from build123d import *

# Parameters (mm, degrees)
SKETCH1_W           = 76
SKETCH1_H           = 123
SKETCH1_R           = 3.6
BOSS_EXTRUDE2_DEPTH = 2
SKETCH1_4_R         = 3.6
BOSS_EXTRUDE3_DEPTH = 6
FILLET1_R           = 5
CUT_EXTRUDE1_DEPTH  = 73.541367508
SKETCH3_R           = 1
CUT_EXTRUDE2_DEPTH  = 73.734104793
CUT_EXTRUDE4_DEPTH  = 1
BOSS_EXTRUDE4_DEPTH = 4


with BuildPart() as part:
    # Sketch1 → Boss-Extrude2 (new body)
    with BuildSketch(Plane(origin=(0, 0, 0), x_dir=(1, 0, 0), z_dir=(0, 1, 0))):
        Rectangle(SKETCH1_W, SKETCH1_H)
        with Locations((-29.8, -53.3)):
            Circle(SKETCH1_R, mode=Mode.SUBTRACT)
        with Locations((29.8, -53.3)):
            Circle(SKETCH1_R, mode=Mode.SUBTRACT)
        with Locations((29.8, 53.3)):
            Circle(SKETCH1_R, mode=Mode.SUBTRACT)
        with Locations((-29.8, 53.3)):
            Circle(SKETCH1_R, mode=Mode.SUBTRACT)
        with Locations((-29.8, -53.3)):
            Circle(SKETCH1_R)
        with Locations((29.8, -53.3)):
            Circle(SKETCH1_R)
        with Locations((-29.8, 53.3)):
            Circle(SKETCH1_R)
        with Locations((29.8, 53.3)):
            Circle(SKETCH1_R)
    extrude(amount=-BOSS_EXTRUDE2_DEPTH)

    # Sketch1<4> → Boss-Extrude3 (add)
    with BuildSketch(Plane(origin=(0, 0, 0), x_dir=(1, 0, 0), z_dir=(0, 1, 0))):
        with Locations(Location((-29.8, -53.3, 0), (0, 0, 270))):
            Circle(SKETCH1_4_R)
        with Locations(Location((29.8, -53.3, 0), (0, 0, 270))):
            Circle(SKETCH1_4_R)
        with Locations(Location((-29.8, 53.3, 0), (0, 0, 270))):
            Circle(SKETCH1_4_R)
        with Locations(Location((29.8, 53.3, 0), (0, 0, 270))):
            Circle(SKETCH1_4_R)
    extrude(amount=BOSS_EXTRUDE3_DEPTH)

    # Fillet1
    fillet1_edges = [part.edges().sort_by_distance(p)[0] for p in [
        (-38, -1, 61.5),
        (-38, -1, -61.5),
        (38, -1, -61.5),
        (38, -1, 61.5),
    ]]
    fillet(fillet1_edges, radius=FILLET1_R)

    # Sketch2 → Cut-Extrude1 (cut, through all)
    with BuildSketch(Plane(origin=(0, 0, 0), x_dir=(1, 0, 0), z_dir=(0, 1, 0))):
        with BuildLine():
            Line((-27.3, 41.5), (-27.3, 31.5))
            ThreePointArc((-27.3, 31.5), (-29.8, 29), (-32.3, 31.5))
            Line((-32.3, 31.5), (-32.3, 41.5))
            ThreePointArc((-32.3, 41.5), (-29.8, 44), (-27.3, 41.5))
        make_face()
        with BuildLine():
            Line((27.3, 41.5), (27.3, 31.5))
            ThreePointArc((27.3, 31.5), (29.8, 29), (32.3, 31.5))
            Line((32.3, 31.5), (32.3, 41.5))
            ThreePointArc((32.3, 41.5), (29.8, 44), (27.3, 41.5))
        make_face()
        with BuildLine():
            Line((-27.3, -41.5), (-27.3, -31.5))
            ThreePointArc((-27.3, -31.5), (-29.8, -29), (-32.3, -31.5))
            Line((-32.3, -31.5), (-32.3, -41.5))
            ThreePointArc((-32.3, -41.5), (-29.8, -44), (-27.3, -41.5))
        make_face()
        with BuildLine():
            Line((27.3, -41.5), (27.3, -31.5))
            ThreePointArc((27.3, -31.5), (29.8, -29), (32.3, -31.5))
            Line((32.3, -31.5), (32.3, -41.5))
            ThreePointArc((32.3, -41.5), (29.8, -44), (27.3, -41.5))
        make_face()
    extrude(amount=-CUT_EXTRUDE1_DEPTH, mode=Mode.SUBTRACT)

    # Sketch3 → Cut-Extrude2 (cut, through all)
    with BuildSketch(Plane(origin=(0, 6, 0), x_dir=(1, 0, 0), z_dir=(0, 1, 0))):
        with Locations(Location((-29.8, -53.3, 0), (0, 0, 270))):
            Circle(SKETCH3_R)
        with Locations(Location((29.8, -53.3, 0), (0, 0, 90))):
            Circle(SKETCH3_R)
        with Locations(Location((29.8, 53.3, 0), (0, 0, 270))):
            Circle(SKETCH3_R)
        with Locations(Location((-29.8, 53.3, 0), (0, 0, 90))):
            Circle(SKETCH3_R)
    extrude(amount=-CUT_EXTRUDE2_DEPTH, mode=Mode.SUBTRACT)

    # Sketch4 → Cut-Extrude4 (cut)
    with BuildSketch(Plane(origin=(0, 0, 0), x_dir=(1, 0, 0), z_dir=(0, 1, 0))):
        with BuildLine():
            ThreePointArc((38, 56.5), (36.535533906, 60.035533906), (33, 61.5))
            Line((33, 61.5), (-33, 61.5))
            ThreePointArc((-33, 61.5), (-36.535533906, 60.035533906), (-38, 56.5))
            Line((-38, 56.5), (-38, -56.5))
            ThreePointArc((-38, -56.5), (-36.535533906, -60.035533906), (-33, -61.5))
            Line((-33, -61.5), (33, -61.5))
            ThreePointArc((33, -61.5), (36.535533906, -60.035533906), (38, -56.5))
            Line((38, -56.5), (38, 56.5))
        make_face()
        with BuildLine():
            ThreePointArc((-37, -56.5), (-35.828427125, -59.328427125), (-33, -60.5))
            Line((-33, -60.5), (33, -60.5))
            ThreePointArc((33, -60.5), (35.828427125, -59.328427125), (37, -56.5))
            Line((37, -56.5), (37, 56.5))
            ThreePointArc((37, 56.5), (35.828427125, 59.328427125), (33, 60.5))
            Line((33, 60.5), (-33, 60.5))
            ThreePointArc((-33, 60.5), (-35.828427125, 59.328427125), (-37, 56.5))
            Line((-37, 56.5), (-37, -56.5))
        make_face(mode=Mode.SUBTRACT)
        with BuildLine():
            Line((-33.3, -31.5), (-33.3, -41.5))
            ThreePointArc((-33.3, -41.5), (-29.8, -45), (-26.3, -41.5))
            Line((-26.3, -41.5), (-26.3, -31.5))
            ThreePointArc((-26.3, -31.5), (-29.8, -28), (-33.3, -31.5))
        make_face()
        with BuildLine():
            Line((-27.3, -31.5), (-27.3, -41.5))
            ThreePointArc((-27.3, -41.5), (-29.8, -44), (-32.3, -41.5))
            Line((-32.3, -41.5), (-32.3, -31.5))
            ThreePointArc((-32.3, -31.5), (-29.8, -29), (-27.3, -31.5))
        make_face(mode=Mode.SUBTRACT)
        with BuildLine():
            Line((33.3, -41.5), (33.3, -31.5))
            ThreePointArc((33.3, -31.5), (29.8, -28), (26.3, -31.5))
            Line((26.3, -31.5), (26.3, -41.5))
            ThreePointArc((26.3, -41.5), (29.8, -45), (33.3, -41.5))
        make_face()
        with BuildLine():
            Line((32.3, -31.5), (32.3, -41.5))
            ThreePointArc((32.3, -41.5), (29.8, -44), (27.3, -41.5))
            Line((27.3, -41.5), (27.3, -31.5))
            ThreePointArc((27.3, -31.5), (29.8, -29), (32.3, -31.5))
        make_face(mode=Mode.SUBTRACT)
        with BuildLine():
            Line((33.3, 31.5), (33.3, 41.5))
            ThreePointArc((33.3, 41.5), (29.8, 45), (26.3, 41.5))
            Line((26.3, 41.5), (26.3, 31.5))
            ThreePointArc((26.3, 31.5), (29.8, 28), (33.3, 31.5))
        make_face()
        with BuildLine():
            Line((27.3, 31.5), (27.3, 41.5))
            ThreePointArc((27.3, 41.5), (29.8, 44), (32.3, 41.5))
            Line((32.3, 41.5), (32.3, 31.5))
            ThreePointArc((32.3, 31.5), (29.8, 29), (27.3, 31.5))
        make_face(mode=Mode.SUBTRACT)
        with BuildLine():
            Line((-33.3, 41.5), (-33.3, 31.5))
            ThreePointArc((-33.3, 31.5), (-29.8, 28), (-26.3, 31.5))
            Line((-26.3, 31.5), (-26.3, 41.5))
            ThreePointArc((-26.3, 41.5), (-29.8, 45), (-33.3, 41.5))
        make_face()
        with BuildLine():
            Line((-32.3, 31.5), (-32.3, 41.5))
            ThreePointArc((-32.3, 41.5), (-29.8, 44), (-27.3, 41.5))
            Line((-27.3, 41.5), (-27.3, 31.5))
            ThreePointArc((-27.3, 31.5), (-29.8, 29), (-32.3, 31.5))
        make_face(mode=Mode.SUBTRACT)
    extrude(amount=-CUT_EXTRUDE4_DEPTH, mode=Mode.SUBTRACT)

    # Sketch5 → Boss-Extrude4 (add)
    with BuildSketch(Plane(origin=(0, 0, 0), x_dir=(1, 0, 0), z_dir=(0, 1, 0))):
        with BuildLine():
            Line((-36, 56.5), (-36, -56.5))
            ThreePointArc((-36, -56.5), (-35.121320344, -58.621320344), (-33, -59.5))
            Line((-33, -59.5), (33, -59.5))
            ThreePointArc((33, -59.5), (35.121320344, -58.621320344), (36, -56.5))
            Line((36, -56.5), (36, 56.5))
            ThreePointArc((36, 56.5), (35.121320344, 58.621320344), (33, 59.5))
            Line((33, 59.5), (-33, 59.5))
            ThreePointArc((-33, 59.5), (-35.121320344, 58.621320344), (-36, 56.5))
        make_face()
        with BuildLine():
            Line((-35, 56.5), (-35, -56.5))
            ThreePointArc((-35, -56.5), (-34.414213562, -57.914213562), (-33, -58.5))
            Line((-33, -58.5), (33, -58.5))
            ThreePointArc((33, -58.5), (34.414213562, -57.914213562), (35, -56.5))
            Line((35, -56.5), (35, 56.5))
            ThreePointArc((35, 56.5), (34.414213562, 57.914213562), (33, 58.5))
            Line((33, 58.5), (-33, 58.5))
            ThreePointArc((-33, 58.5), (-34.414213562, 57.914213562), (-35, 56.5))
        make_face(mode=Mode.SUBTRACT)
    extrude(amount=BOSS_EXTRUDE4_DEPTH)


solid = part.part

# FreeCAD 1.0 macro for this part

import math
import FreeCAD as App
import Part
import Sketcher

V = App.Vector
Q = App.Units.Quantity


def edges_at(feature, points):
    """Names of the edges that pass closest to the given points."""
    edges = feature.Shape.Edges
    near = lambda p: min(range(len(edges)), key=lambda i: edges[i].distToShape(Part.Vertex(*p))[0])
    return sorted({f"Edge{near(p) + 1}" for p in points})


def add_polygon(sketch, points):
    """Adds a closed chain of lines whose ends are joined by coincident constraints."""
    first, n = sketch.GeometryCount, len(points)
    for a, b in zip(points, points[1:] + points[:1]):
        sketch.addGeometry(Part.LineSegment(App.Vector(*a, 0), App.Vector(*b, 0)), False)
    for i in range(n):
        sketch.addConstraint(Sketcher.Constraint("Coincident", first + i, 2, first + (i + 1) % n, 1))

doc = App.newDocument("Part")
body = doc.addObject("PartDesign::Body", "Body")

# Sketch on XZ plane
sketch1 = doc.addObject("Sketcher::SketchObject", "Sketch")
body.addObject(sketch1)
sketch1.AttachmentSupport = (doc.XZ_Plane, [""])
sketch1.MapMode = "FlatFace"
add_polygon(sketch1, [(-38, -61.5), (-38, 61.5), (38, 61.5), (38, -61.5)])  # lines 0-3
sketch1.addConstraint(Sketcher.Constraint("Vertical", 0))
sketch1.addConstraint(Sketcher.Constraint("Horizontal", 1))
sketch1.addConstraint(Sketcher.Constraint("Vertical", 2))
sketch1.addConstraint(Sketcher.Constraint("Horizontal", 3))
sketch1.addConstraint(Sketcher.Constraint("Symmetric", 0, 2, 2, 2, -1, 1))
sketch1.addConstraint(Sketcher.Constraint("DistanceX", 1, 1, 1, 2, Q("76 mm")))
sketch1.addConstraint(Sketcher.Constraint("DistanceY", 0, 1, 0, 2, Q("123 mm")))
pad1 = doc.addObject("PartDesign::Pad", "Pad")
body.addObject(pad1)
pad1.Profile = sketch1
pad1.Length = 2

# Sketch on XZ plane
sketch2 = doc.addObject("Sketcher::SketchObject", "Sketch001")
body.addObject(sketch2)
sketch2.AttachmentSupport = (doc.XZ_Plane, [""])
sketch2.MapMode = "FlatFace"
sketch2.addGeometry(Part.Circle(V(-29.8, 53.3, 0), V(0, 0, 1), 3.6), False)
sketch2.addGeometry(Part.Circle(V(29.8, 53.3, 0), V(0, 0, 1), 3.6), False)
sketch2.addGeometry(Part.Circle(V(-29.8, -53.3, 0), V(0, 0, 1), 3.6), False)
sketch2.addGeometry(Part.Circle(V(29.8, -53.3, 0), V(0, 0, 1), 3.6), False)
sketch2.addConstraint(Sketcher.Constraint("Equal", 0, 1))
sketch2.addConstraint(Sketcher.Constraint("Equal", 1, 2))
sketch2.addConstraint(Sketcher.Constraint("Equal", 2, 3))
sketch2.addConstraint(Sketcher.Constraint("Symmetric", 1, 3, 2, 3, -1, 1))
sketch2.addConstraint(Sketcher.Constraint("Symmetric", 0, 3, 3, 3, -1, 1))
sketch2.addConstraint(Sketcher.Constraint("Symmetric", 0, 3, 1, 3, -2))
sketch2.addConstraint(Sketcher.Constraint("Diameter", 0, Q("7.2 mm")))
sketch2.addConstraint(Sketcher.Constraint("DistanceX", 0, 3, -1, 1, Q("29.8 mm")))
sketch2.addConstraint(Sketcher.Constraint("DistanceY", -1, 1, 0, 3, Q("53.3 mm")))
pad2 = doc.addObject("PartDesign::Pad", "Pad001")
body.addObject(pad2)
pad2.Profile = sketch2
pad2.Length = 6
pad2.Reversed = True
doc.recompute()

fillet = doc.addObject("PartDesign::Fillet", "Fillet")
body.addObject(fillet)
fillet.Base = (pad2, edges_at(pad2, [
    (-38, -1, 61.5),
    (-38, -1, -61.5),
    (38, -1, -61.5),
    (38, -1, 61.5),
]))
fillet.Radius = 5

# Sketch on XZ plane
sketch3 = doc.addObject("Sketcher::SketchObject", "Sketch002")
body.addObject(sketch3)
sketch3.AttachmentSupport = (doc.XZ_Plane, [""])
sketch3.MapMode = "FlatFace"
sketch3.addGeometry(Part.LineSegment(V(-27.3, -31.5, 0), V(-27.3, -41.5, 0)), False)
sketch3.addGeometry(Part.ArcOfCircle(Part.Circle(V(-29.8, -41.5, 0), V(0, 0, 1), 2.5), math.radians(180), math.radians(360)), False)
sketch3.addGeometry(Part.LineSegment(V(-32.3, -41.5, 0), V(-32.3, -31.5, 0)), False)
sketch3.addGeometry(Part.ArcOfCircle(Part.Circle(V(-29.8, -31.5, 0), V(0, 0, 1), 2.5), math.radians(0), math.radians(180)), False)
sketch3.addGeometry(Part.LineSegment(V(27.3, -41.5, 0), V(27.3, -31.5, 0)), False)
sketch3.addGeometry(Part.ArcOfCircle(Part.Circle(V(29.8, -31.5, 0), V(0, 0, 1), 2.5), math.radians(0), math.radians(180)), False)
sketch3.addGeometry(Part.LineSegment(V(32.3, -31.5, 0), V(32.3, -41.5, 0)), False)
sketch3.addGeometry(Part.ArcOfCircle(Part.Circle(V(29.8, -41.5, 0), V(0, 0, 1), 2.5), math.radians(180), math.radians(360)), False)
sketch3.addGeometry(Part.LineSegment(V(-27.3, 41.5, 0), V(-27.3, 31.5, 0)), False)
sketch3.addGeometry(Part.ArcOfCircle(Part.Circle(V(-29.8, 31.5, 0), V(0, 0, 1), 2.5), math.radians(180), math.radians(360)), False)
sketch3.addGeometry(Part.LineSegment(V(-32.3, 31.5, 0), V(-32.3, 41.5, 0)), False)
sketch3.addGeometry(Part.ArcOfCircle(Part.Circle(V(-29.8, 41.5, 0), V(0, 0, 1), 2.5), math.radians(0), math.radians(180)), False)
sketch3.addGeometry(Part.LineSegment(V(27.3, 31.5, 0), V(27.3, 41.5, 0)), False)
sketch3.addGeometry(Part.ArcOfCircle(Part.Circle(V(29.8, 41.5, 0), V(0, 0, 1), 2.5), math.radians(0), math.radians(180)), False)
sketch3.addGeometry(Part.LineSegment(V(32.3, 41.5, 0), V(32.3, 31.5, 0)), False)
sketch3.addGeometry(Part.ArcOfCircle(Part.Circle(V(29.8, 31.5, 0), V(0, 0, 1), 2.5), math.radians(180), math.radians(360)), False)
sketch3.addConstraint(Sketcher.Constraint("Tangent", 0, 2, 1, 2))
sketch3.addConstraint(Sketcher.Constraint("Tangent", 1, 1, 2, 1))
sketch3.addConstraint(Sketcher.Constraint("Tangent", 2, 2, 3, 2))
sketch3.addConstraint(Sketcher.Constraint("Tangent", 3, 1, 0, 1))
sketch3.addConstraint(Sketcher.Constraint("Tangent", 4, 2, 5, 2))
sketch3.addConstraint(Sketcher.Constraint("Tangent", 5, 1, 6, 1))
sketch3.addConstraint(Sketcher.Constraint("Tangent", 6, 2, 7, 2))
sketch3.addConstraint(Sketcher.Constraint("Tangent", 7, 1, 4, 1))
sketch3.addConstraint(Sketcher.Constraint("Tangent", 8, 2, 9, 2))
sketch3.addConstraint(Sketcher.Constraint("Tangent", 9, 1, 10, 1))
sketch3.addConstraint(Sketcher.Constraint("Tangent", 10, 2, 11, 2))
sketch3.addConstraint(Sketcher.Constraint("Tangent", 11, 1, 8, 1))
sketch3.addConstraint(Sketcher.Constraint("Tangent", 12, 2, 13, 2))
sketch3.addConstraint(Sketcher.Constraint("Tangent", 13, 1, 14, 1))
sketch3.addConstraint(Sketcher.Constraint("Tangent", 14, 2, 15, 2))
sketch3.addConstraint(Sketcher.Constraint("Tangent", 15, 1, 12, 1))
sketch3.addConstraint(Sketcher.Constraint("Vertical", 0))
sketch3.addConstraint(Sketcher.Constraint("Vertical", 2))
sketch3.addConstraint(Sketcher.Constraint("Vertical", 4))
sketch3.addConstraint(Sketcher.Constraint("Vertical", 6))
sketch3.addConstraint(Sketcher.Constraint("Vertical", 8))
sketch3.addConstraint(Sketcher.Constraint("Vertical", 10))
sketch3.addConstraint(Sketcher.Constraint("Vertical", 12))
sketch3.addConstraint(Sketcher.Constraint("Vertical", 14))
sketch3.addConstraint(Sketcher.Constraint("Equal", 3, 5))
sketch3.addConstraint(Sketcher.Constraint("Equal", 7, 9))
sketch3.addConstraint(Sketcher.Constraint("Equal", 11, 13))
sketch3.addConstraint(Sketcher.Constraint("Symmetric", 5, 3, 9, 3, -1, 1))
sketch3.addConstraint(Sketcher.Constraint("Symmetric", 1, 3, 13, 3, -1, 1))
sketch3.addConstraint(Sketcher.Constraint("Symmetric", 3, 3, 5, 3, -2))
sketch3.addConstraint(Sketcher.Constraint("Horizontal", 1, 3, 7, 3))
sketch3.addConstraint(Sketcher.Constraint("Horizontal", 11, 3, 13, 3))
sketch3.addConstraint(Sketcher.Constraint("Horizontal", 9, 3, 15, 3))
sketch3.addConstraint(Sketcher.Constraint("Radius", 1, Q("2.5 mm")))
sketch3.addConstraint(Sketcher.Constraint("DistanceY", 0, 2, 0, 1, Q("10 mm")))
sketch3.addConstraint(Sketcher.Constraint("DistanceY", 3, 3, 9, 3, Q("63 mm")))
sketch3.addConstraint(Sketcher.Constraint("DistanceX", 1, 3, -1, 1, Q("29.8 mm")))
pocket1 = doc.addObject("PartDesign::Pocket", "Pocket")
body.addObject(pocket1)
pocket1.Profile = sketch3
pocket1.Type = "ThroughAll"
pocket1.Reversed = True

# Sketch on XZ plane
sketch4 = doc.addObject("Sketcher::SketchObject", "Sketch003")
body.addObject(sketch4)
sketch4.AttachmentSupport = (doc.XZ_Plane, [""])
sketch4.MapMode = "FlatFace"
sketch4.AttachmentOffset = App.Placement(V(0, 0, -6), App.Rotation())
sketch4.addGeometry(Part.Circle(V(-29.8, 53.3, 0), V(0, 0, 1), 1), False)
sketch4.addGeometry(Part.Circle(V(29.8, 53.3, 0), V(0, 0, 1), 1), False)
sketch4.addGeometry(Part.Circle(V(29.8, -53.3, 0), V(0, 0, 1), 1), False)
sketch4.addGeometry(Part.Circle(V(-29.8, -53.3, 0), V(0, 0, 1), 1), False)
sketch4.addConstraint(Sketcher.Constraint("Equal", 0, 1))
sketch4.addConstraint(Sketcher.Constraint("Equal", 1, 2))
sketch4.addConstraint(Sketcher.Constraint("Equal", 2, 3))
sketch4.addConstraint(Sketcher.Constraint("Symmetric", 0, 3, 2, 3, -1, 1))
sketch4.addConstraint(Sketcher.Constraint("Symmetric", 1, 3, 3, 3, -1, 1))
sketch4.addConstraint(Sketcher.Constraint("Symmetric", 0, 3, 1, 3, -2))
sketch4.addConstraint(Sketcher.Constraint("Diameter", 0, Q("2 mm")))
sketch4.addConstraint(Sketcher.Constraint("DistanceX", 0, 3, -1, 1, Q("29.8 mm")))
sketch4.addConstraint(Sketcher.Constraint("DistanceY", -1, 1, 0, 3, Q("53.3 mm")))
pocket2 = doc.addObject("PartDesign::Pocket", "Pocket001")
body.addObject(pocket2)
pocket2.Profile = sketch4
pocket2.Type = "ThroughAll"
pocket2.Reversed = True

# Sketch on XZ plane
sketch5 = doc.addObject("Sketcher::SketchObject", "Sketch004")
body.addObject(sketch5)
sketch5.AttachmentSupport = (doc.XZ_Plane, [""])
sketch5.MapMode = "FlatFace"
sketch5.addGeometry(Part.ArcOfCircle(Part.Circle(V(33, -56.5, 0), V(0, 0, 1), 5), math.radians(-90), math.radians(0)), False)
sketch5.addGeometry(Part.LineSegment(V(33, -61.5, 0), V(-33, -61.5, 0)), False)
sketch5.addGeometry(Part.ArcOfCircle(Part.Circle(V(-33, -56.5, 0), V(0, 0, 1), 5), math.radians(180), math.radians(270)), False)
sketch5.addGeometry(Part.LineSegment(V(-38, -56.5, 0), V(-38, 56.5, 0)), False)
sketch5.addGeometry(Part.ArcOfCircle(Part.Circle(V(-33, 56.5, 0), V(0, 0, 1), 5), math.radians(90), math.radians(180)), False)
sketch5.addGeometry(Part.LineSegment(V(-33, 61.5, 0), V(33, 61.5, 0)), False)
sketch5.addGeometry(Part.ArcOfCircle(Part.Circle(V(33, 56.5, 0), V(0, 0, 1), 5), math.radians(0), math.radians(90)), False)
sketch5.addGeometry(Part.LineSegment(V(38, 56.5, 0), V(38, -56.5, 0)), False)
sketch5.addGeometry(Part.ArcOfCircle(Part.Circle(V(-33, 56.5, 0), V(0, 0, 1), 4), math.radians(90), math.radians(180)), False)
sketch5.addGeometry(Part.LineSegment(V(-37, 56.5, 0), V(-37, -56.5, 0)), False)
sketch5.addGeometry(Part.ArcOfCircle(Part.Circle(V(-33, -56.5, 0), V(0, 0, 1), 4), math.radians(180), math.radians(270)), False)
sketch5.addGeometry(Part.LineSegment(V(-33, -60.5, 0), V(33, -60.5, 0)), False)
sketch5.addGeometry(Part.ArcOfCircle(Part.Circle(V(33, -56.5, 0), V(0, 0, 1), 4), math.radians(-90), math.radians(0)), False)
sketch5.addGeometry(Part.LineSegment(V(37, -56.5, 0), V(37, 56.5, 0)), False)
sketch5.addGeometry(Part.ArcOfCircle(Part.Circle(V(33, 56.5, 0), V(0, 0, 1), 4), math.radians(0), math.radians(90)), False)
sketch5.addGeometry(Part.LineSegment(V(33, 60.5, 0), V(-33, 60.5, 0)), False)
sketch5.addGeometry(Part.LineSegment(V(-33.3, 31.5, 0), V(-33.3, 41.5, 0)), False)
sketch5.addGeometry(Part.ArcOfCircle(Part.Circle(V(-29.8, 41.5, 0), V(0, 0, 1), 3.5), math.radians(0), math.radians(180)), False)
sketch5.addGeometry(Part.LineSegment(V(-26.3, 41.5, 0), V(-26.3, 31.5, 0)), False)
sketch5.addGeometry(Part.ArcOfCircle(Part.Circle(V(-29.8, 31.5, 0), V(0, 0, 1), 3.5), math.radians(180), math.radians(360)), False)
sketch5.addGeometry(Part.ArcOfCircle(Part.Circle(V(-29.8, 31.5, 0), V(0, 0, 1), 2.5), math.radians(180), math.radians(360)), False)
sketch5.addGeometry(Part.LineSegment(V(-27.3, 31.5, 0), V(-27.3, 41.5, 0)), False)
sketch5.addGeometry(Part.ArcOfCircle(Part.Circle(V(-29.8, 41.5, 0), V(0, 0, 1), 2.5), math.radians(0), math.radians(180)), False)
sketch5.addGeometry(Part.LineSegment(V(-32.3, 41.5, 0), V(-32.3, 31.5, 0)), False)
sketch5.addGeometry(Part.LineSegment(V(33.3, 41.5, 0), V(33.3, 31.5, 0)), False)
sketch5.addGeometry(Part.ArcOfCircle(Part.Circle(V(29.8, 31.5, 0), V(0, 0, 1), 3.5), math.radians(180), math.radians(360)), False)
sketch5.addGeometry(Part.LineSegment(V(26.3, 31.5, 0), V(26.3, 41.5, 0)), False)
sketch5.addGeometry(Part.ArcOfCircle(Part.Circle(V(29.8, 41.5, 0), V(0, 0, 1), 3.5), math.radians(0), math.radians(180)), False)
sketch5.addGeometry(Part.ArcOfCircle(Part.Circle(V(29.8, 31.5, 0), V(0, 0, 1), 2.5), math.radians(180), math.radians(360)), False)
sketch5.addGeometry(Part.LineSegment(V(32.3, 31.5, 0), V(32.3, 41.5, 0)), False)
sketch5.addGeometry(Part.ArcOfCircle(Part.Circle(V(29.8, 41.5, 0), V(0, 0, 1), 2.5), math.radians(0), math.radians(180)), False)
sketch5.addGeometry(Part.LineSegment(V(27.3, 41.5, 0), V(27.3, 31.5, 0)), False)
sketch5.addGeometry(Part.LineSegment(V(33.3, -31.5, 0), V(33.3, -41.5, 0)), False)
sketch5.addGeometry(Part.ArcOfCircle(Part.Circle(V(29.8, -41.5, 0), V(0, 0, 1), 3.5), math.radians(180), math.radians(360)), False)
sketch5.addGeometry(Part.LineSegment(V(26.3, -41.5, 0), V(26.3, -31.5, 0)), False)
sketch5.addGeometry(Part.ArcOfCircle(Part.Circle(V(29.8, -31.5, 0), V(0, 0, 1), 3.5), math.radians(0), math.radians(180)), False)
sketch5.addGeometry(Part.ArcOfCircle(Part.Circle(V(29.8, -31.5, 0), V(0, 0, 1), 2.5), math.radians(0), math.radians(180)), False)
sketch5.addGeometry(Part.LineSegment(V(27.3, -31.5, 0), V(27.3, -41.5, 0)), False)
sketch5.addGeometry(Part.ArcOfCircle(Part.Circle(V(29.8, -41.5, 0), V(0, 0, 1), 2.5), math.radians(180), math.radians(360)), False)
sketch5.addGeometry(Part.LineSegment(V(32.3, -41.5, 0), V(32.3, -31.5, 0)), False)
sketch5.addGeometry(Part.LineSegment(V(-33.3, -41.5, 0), V(-33.3, -31.5, 0)), False)
sketch5.addGeometry(Part.ArcOfCircle(Part.Circle(V(-29.8, -31.5, 0), V(0, 0, 1), 3.5), math.radians(0), math.radians(180)), False)
sketch5.addGeometry(Part.LineSegment(V(-26.3, -31.5, 0), V(-26.3, -41.5, 0)), False)
sketch5.addGeometry(Part.ArcOfCircle(Part.Circle(V(-29.8, -41.5, 0), V(0, 0, 1), 3.5), math.radians(180), math.radians(360)), False)
sketch5.addGeometry(Part.ArcOfCircle(Part.Circle(V(-29.8, -31.5, 0), V(0, 0, 1), 2.5), math.radians(0), math.radians(180)), False)
sketch5.addGeometry(Part.LineSegment(V(-32.3, -31.5, 0), V(-32.3, -41.5, 0)), False)
sketch5.addGeometry(Part.ArcOfCircle(Part.Circle(V(-29.8, -41.5, 0), V(0, 0, 1), 2.5), math.radians(180), math.radians(360)), False)
sketch5.addGeometry(Part.LineSegment(V(-27.3, -41.5, 0), V(-27.3, -31.5, 0)), False)
sketch5.addConstraint(Sketcher.Constraint("Tangent", 0, 1, 1, 1))
sketch5.addConstraint(Sketcher.Constraint("Tangent", 1, 2, 2, 2))
sketch5.addConstraint(Sketcher.Constraint("Tangent", 2, 1, 3, 1))
sketch5.addConstraint(Sketcher.Constraint("Tangent", 3, 2, 4, 2))
sketch5.addConstraint(Sketcher.Constraint("Tangent", 4, 1, 5, 1))
sketch5.addConstraint(Sketcher.Constraint("Tangent", 5, 2, 6, 2))
sketch5.addConstraint(Sketcher.Constraint("Tangent", 6, 1, 7, 1))
sketch5.addConstraint(Sketcher.Constraint("Tangent", 7, 2, 0, 2))
sketch5.addConstraint(Sketcher.Constraint("Tangent", 8, 2, 9, 1))
sketch5.addConstraint(Sketcher.Constraint("Tangent", 9, 2, 10, 1))
sketch5.addConstraint(Sketcher.Constraint("Tangent", 10, 2, 11, 1))
sketch5.addConstraint(Sketcher.Constraint("Tangent", 11, 2, 12, 1))
sketch5.addConstraint(Sketcher.Constraint("Tangent", 12, 2, 13, 1))
sketch5.addConstraint(Sketcher.Constraint("Tangent", 13, 2, 14, 1))
sketch5.addConstraint(Sketcher.Constraint("Tangent", 14, 2, 15, 1))
sketch5.addConstraint(Sketcher.Constraint("Tangent", 15, 2, 8, 1))
sketch5.addConstraint(Sketcher.Constraint("Tangent", 16, 2, 17, 2))
sketch5.addConstraint(Sketcher.Constraint("Tangent", 17, 1, 18, 1))
sketch5.addConstraint(Sketcher.Constraint("Tangent", 18, 2, 19, 2))
sketch5.addConstraint(Sketcher.Constraint("Tangent", 19, 1, 16, 1))
sketch5.addConstraint(Sketcher.Constraint("Tangent", 20, 2, 21, 1))
sketch5.addConstraint(Sketcher.Constraint("Tangent", 21, 2, 22, 1))
sketch5.addConstraint(Sketcher.Constraint("Tangent", 22, 2, 23, 1))
sketch5.addConstraint(Sketcher.Constraint("Tangent", 23, 2, 20, 1))
sketch5.addConstraint(Sketcher.Constraint("Tangent", 24, 2, 25, 2))
sketch5.addConstraint(Sketcher.Constraint("Tangent", 25, 1, 26, 1))
sketch5.addConstraint(Sketcher.Constraint("Tangent", 26, 2, 27, 2))
sketch5.addConstraint(Sketcher.Constraint("Tangent", 27, 1, 24, 1))
sketch5.addConstraint(Sketcher.Constraint("Tangent", 28, 2, 29, 1))
sketch5.addConstraint(Sketcher.Constraint("Tangent", 29, 2, 30, 1))
sketch5.addConstraint(Sketcher.Constraint("Tangent", 30, 2, 31, 1))
sketch5.addConstraint(Sketcher.Constraint("Tangent", 31, 2, 28, 1))
sketch5.addConstraint(Sketcher.Constraint("Tangent", 32, 2, 33, 2))
sketch5.addConstraint(Sketcher.Constraint("Tangent", 33, 1, 34, 1))
sketch5.addConstraint(Sketcher.Constraint("Tangent", 34, 2, 35, 2))
sketch5.addConstraint(Sketcher.Constraint("Tangent", 35, 1, 32, 1))
sketch5.addConstraint(Sketcher.Constraint("Tangent", 36, 2, 37, 1))
sketch5.addConstraint(Sketcher.Constraint("Tangent", 37, 2, 38, 1))
sketch5.addConstraint(Sketcher.Constraint("Tangent", 38, 2, 39, 1))
sketch5.addConstraint(Sketcher.Constraint("Tangent", 39, 2, 36, 1))
sketch5.addConstraint(Sketcher.Constraint("Tangent", 40, 2, 41, 2))
sketch5.addConstraint(Sketcher.Constraint("Tangent", 41, 1, 42, 1))
sketch5.addConstraint(Sketcher.Constraint("Tangent", 42, 2, 43, 2))
sketch5.addConstraint(Sketcher.Constraint("Tangent", 43, 1, 40, 1))
sketch5.addConstraint(Sketcher.Constraint("Tangent", 44, 2, 45, 1))
sketch5.addConstraint(Sketcher.Constraint("Tangent", 45, 2, 46, 1))
sketch5.addConstraint(Sketcher.Constraint("Tangent", 46, 2, 47, 1))
sketch5.addConstraint(Sketcher.Constraint("Tangent", 47, 2, 44, 1))
sketch5.addConstraint(Sketcher.Constraint("Horizontal", 1))
sketch5.addConstraint(Sketcher.Constraint("Vertical", 3))
sketch5.addConstraint(Sketcher.Constraint("Horizontal", 5))
sketch5.addConstraint(Sketcher.Constraint("Vertical", 7))
sketch5.addConstraint(Sketcher.Constraint("Vertical", 9))
sketch5.addConstraint(Sketcher.Constraint("Horizontal", 11))
sketch5.addConstraint(Sketcher.Constraint("Vertical", 13))
sketch5.addConstraint(Sketcher.Constraint("Horizontal", 15))
sketch5.addConstraint(Sketcher.Constraint("Vertical", 16))
sketch5.addConstraint(Sketcher.Constraint("Vertical", 18))
sketch5.addConstraint(Sketcher.Constraint("Vertical", 21))
sketch5.addConstraint(Sketcher.Constraint("Vertical", 23))
sketch5.addConstraint(Sketcher.Constraint("Vertical", 24))
sketch5.addConstraint(Sketcher.Constraint("Vertical", 26))
sketch5.addConstraint(Sketcher.Constraint("Vertical", 29))
sketch5.addConstraint(Sketcher.Constraint("Vertical", 31))
sketch5.addConstraint(Sketcher.Constraint("Vertical", 32))
sketch5.addConstraint(Sketcher.Constraint("Vertical", 34))
sketch5.addConstraint(Sketcher.Constraint("Vertical", 37))
sketch5.addConstraint(Sketcher.Constraint("Vertical", 39))
sketch5.addConstraint(Sketcher.Constraint("Vertical", 40))
sketch5.addConstraint(Sketcher.Constraint("Vertical", 42))
sketch5.addConstraint(Sketcher.Constraint("Vertical", 45))
sketch5.addConstraint(Sketcher.Constraint("Vertical", 47))
sketch5.addConstraint(Sketcher.Constraint("Coincident", 8, 3, 4, 3))
sketch5.addConstraint(Sketcher.Constraint("Coincident", 10, 3, 2, 3))
sketch5.addConstraint(Sketcher.Constraint("Coincident", 12, 3, 0, 3))
sketch5.addConstraint(Sketcher.Constraint("Coincident", 20, 3, 19, 3))
sketch5.addConstraint(Sketcher.Constraint("Coincident", 28, 3, 25, 3))
sketch5.addConstraint(Sketcher.Constraint("Coincident", 36, 3, 35, 3))
sketch5.addConstraint(Sketcher.Constraint("Coincident", 44, 3, 41, 3))
sketch5.addConstraint(Sketcher.Constraint("Equal", 0, 2))
sketch5.addConstraint(Sketcher.Constraint("Equal", 2, 4))
sketch5.addConstraint(Sketcher.Constraint("Equal", 4, 6))
sketch5.addConstraint(Sketcher.Constraint("Equal", 12, 14))
sketch5.addConstraint(Sketcher.Constraint("Equal", 19, 25))
sketch5.addConstraint(Sketcher.Constraint("Equal", 22, 28))
sketch5.addConstraint(Sketcher.Constraint("Equal", 27, 33))
sketch5.addConstraint(Sketcher.Constraint("Equal", 30, 36))
sketch5.addConstraint(Sketcher.Constraint("Equal", 35, 41))
sketch5.addConstraint(Sketcher.Constraint("Equal", 38, 44))
sketch5.addConstraint(Sketcher.Constraint("Symmetric", 0, 3, 4, 3, -1, 1))
sketch5.addConstraint(Sketcher.Constraint("Symmetric", 17, 3, 33, 3, -1, 1))
sketch5.addConstraint(Sketcher.Constraint("Symmetric", 25, 3, 41, 3, -1, 1))
sketch5.addConstraint(Sketcher.Constraint("Symmetric", 19, 3, 25, 3, -2))
sketch5.addConstraint(Sketcher.Constraint("Horizontal", 22, 3, 27, 3))
sketch5.addConstraint(Sketcher.Constraint("Horizontal", 22, 3, 30, 3))
sketch5.addConstraint(Sketcher.Constraint("Horizontal", 36, 3, 41, 3))
sketch5.addConstraint(Sketcher.Constraint("Horizontal", 38, 3, 43, 3))
sketch5.addConstraint(Sketcher.Constraint("Horizontal", 38, 3, 46, 3))
sketch5.addConstraint(Sketcher.Constraint("Horizontal", 30, 3, 16, 2))
sketch5.addConstraint(Sketcher.Constraint("Horizontal", 46, 3, 32, 2))
sketch5.addConstraint(Sketcher.Constraint("Radius", 0, Q("5 mm")))
sketch5.addConstraint(Sketcher.Constraint("Radius", 8, Q("4 mm")))
sketch5.addConstraint(Sketcher.Constraint("Radius", 17, Q("3.5 mm")))
sketch5.addConstraint(Sketcher.Constraint("Radius", 20, Q("2.5 mm")))
sketch5.addConstraint(Sketcher.Constraint("DistanceX", 1, 2, 1, 1, Q("66 mm")))
sketch5.addConstraint(Sketcher.Constraint("DistanceY", 3, 1, 3, 2, Q("113 mm")))
sketch5.addConstraint(Sketcher.Constraint("DistanceY", 16, 1, 16, 2, Q("10 mm")))
sketch5.addConstraint(Sketcher.Constraint("DistanceX", 17, 3, -1, 1, Q("29.8 mm")))
sketch5.addConstraint(Sketcher.Constraint("DistanceY", -1, 1, 17, 3, Q("41.5 mm")))
pocket3 = doc.addObject("PartDesign::Pocket", "Pocket002")
body.addObject(pocket3)
pocket3.Profile = sketch5
pocket3.Length = 1
pocket3.Reversed = True

# Sketch on XZ plane
sketch6 = doc.addObject("Sketcher::SketchObject", "Sketch005")
body.addObject(sketch6)
sketch6.AttachmentSupport = (doc.XZ_Plane, [""])
sketch6.MapMode = "FlatFace"
sketch6.addGeometry(Part.LineSegment(V(-36, -56.5, 0), V(-36, 56.5, 0)), False)
sketch6.addGeometry(Part.ArcOfCircle(Part.Circle(V(-33, 56.5, 0), V(0, 0, 1), 3), math.radians(90), math.radians(180)), False)
sketch6.addGeometry(Part.LineSegment(V(-33, 59.5, 0), V(33, 59.5, 0)), False)
sketch6.addGeometry(Part.ArcOfCircle(Part.Circle(V(33, 56.5, 0), V(0, 0, 1), 3), math.radians(0), math.radians(90)), False)
sketch6.addGeometry(Part.LineSegment(V(36, 56.5, 0), V(36, -56.5, 0)), False)
sketch6.addGeometry(Part.ArcOfCircle(Part.Circle(V(33, -56.5, 0), V(0, 0, 1), 3), math.radians(-90), math.radians(0)), False)
sketch6.addGeometry(Part.LineSegment(V(33, -59.5, 0), V(-33, -59.5, 0)), False)
sketch6.addGeometry(Part.ArcOfCircle(Part.Circle(V(-33, -56.5, 0), V(0, 0, 1), 3), math.radians(180), math.radians(270)), False)
sketch6.addGeometry(Part.LineSegment(V(-35, 56.5, 0), V(-35, -56.5, 0)), False)
sketch6.addGeometry(Part.ArcOfCircle(Part.Circle(V(-33, -56.5, 0), V(0, 0, 1), 2), math.radians(-180), math.radians(-90)), False)
sketch6.addGeometry(Part.LineSegment(V(-33, -58.5, 0), V(33, -58.5, 0)), False)
sketch6.addGeometry(Part.ArcOfCircle(Part.Circle(V(33, -56.5, 0), V(0, 0, 1), 2), math.radians(-90), math.radians(0)), False)
sketch6.addGeometry(Part.LineSegment(V(35, -56.5, 0), V(35, 56.5, 0)), False)
sketch6.addGeometry(Part.ArcOfCircle(Part.Circle(V(33, 56.5, 0), V(0, 0, 1), 2), math.radians(0), math.radians(90)), False)
sketch6.addGeometry(Part.LineSegment(V(33, 58.5, 0), V(-33, 58.5, 0)), False)
sketch6.addGeometry(Part.ArcOfCircle(Part.Circle(V(-33, 56.5, 0), V(0, 0, 1), 2), math.radians(90), math.radians(180)), False)
sketch6.addConstraint(Sketcher.Constraint("Tangent", 0, 2, 1, 2))
sketch6.addConstraint(Sketcher.Constraint("Tangent", 1, 1, 2, 1))
sketch6.addConstraint(Sketcher.Constraint("Tangent", 2, 2, 3, 2))
sketch6.addConstraint(Sketcher.Constraint("Tangent", 3, 1, 4, 1))
sketch6.addConstraint(Sketcher.Constraint("Tangent", 4, 2, 5, 2))
sketch6.addConstraint(Sketcher.Constraint("Tangent", 5, 1, 6, 1))
sketch6.addConstraint(Sketcher.Constraint("Tangent", 6, 2, 7, 2))
sketch6.addConstraint(Sketcher.Constraint("Tangent", 7, 1, 0, 1))
sketch6.addConstraint(Sketcher.Constraint("Tangent", 8, 2, 9, 1))
sketch6.addConstraint(Sketcher.Constraint("Tangent", 9, 2, 10, 1))
sketch6.addConstraint(Sketcher.Constraint("Tangent", 10, 2, 11, 1))
sketch6.addConstraint(Sketcher.Constraint("Tangent", 11, 2, 12, 1))
sketch6.addConstraint(Sketcher.Constraint("Tangent", 12, 2, 13, 1))
sketch6.addConstraint(Sketcher.Constraint("Tangent", 13, 2, 14, 1))
sketch6.addConstraint(Sketcher.Constraint("Tangent", 14, 2, 15, 1))
sketch6.addConstraint(Sketcher.Constraint("Tangent", 15, 2, 8, 1))
sketch6.addConstraint(Sketcher.Constraint("Vertical", 0))
sketch6.addConstraint(Sketcher.Constraint("Horizontal", 2))
sketch6.addConstraint(Sketcher.Constraint("Vertical", 4))
sketch6.addConstraint(Sketcher.Constraint("Horizontal", 6))
sketch6.addConstraint(Sketcher.Constraint("Vertical", 8))
sketch6.addConstraint(Sketcher.Constraint("Horizontal", 10))
sketch6.addConstraint(Sketcher.Constraint("Vertical", 12))
sketch6.addConstraint(Sketcher.Constraint("Horizontal", 14))
sketch6.addConstraint(Sketcher.Constraint("Coincident", 9, 3, 7, 3))
sketch6.addConstraint(Sketcher.Constraint("Coincident", 11, 3, 5, 3))
sketch6.addConstraint(Sketcher.Constraint("Coincident", 13, 3, 3, 3))
sketch6.addConstraint(Sketcher.Constraint("Equal", 1, 3))
sketch6.addConstraint(Sketcher.Constraint("Equal", 3, 5))
sketch6.addConstraint(Sketcher.Constraint("Equal", 5, 7))
sketch6.addConstraint(Sketcher.Constraint("Equal", 13, 15))
sketch6.addConstraint(Sketcher.Constraint("Symmetric", 1, 3, 5, 3, -1, 1))
sketch6.addConstraint(Sketcher.Constraint("Radius", 1, Q("3 mm")))
sketch6.addConstraint(Sketcher.Constraint("Radius", 9, Q("2 mm")))
sketch6.addConstraint(Sketcher.Constraint("DistanceX", 2, 1, 2, 2, Q("66 mm")))
sketch6.addConstraint(Sketcher.Constraint("DistanceY", 0, 1, 0, 2, Q("113 mm")))
pad3 = doc.addObject("PartDesign::Pad", "Pad002")
body.addObject(pad3)
pad3.Profile = sketch6
pad3.Length = 4
pad3.Reversed = True

doc.recompute()
